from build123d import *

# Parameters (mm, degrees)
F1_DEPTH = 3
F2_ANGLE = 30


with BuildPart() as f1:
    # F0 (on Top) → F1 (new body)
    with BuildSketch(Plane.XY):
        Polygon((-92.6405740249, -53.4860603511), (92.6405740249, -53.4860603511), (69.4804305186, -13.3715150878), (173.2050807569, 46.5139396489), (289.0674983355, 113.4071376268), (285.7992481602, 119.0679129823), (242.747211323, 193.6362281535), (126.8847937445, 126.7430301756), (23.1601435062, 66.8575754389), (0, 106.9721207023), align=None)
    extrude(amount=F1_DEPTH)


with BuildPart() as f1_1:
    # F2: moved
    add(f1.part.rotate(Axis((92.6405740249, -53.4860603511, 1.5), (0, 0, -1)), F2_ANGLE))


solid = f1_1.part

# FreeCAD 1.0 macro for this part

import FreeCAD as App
import Part
import Sketcher

V = App.Vector
Q = App.Units.Quantity


def add_polygon(sketch, points):
    """Adds a closed chain of lines whose ends are joined by coincident constraints."""
    first, n = sketch.GeometryCount, len(points)
    for a, b in zip(points, points[1:] + points[:1]):
        sketch.addGeometry(Part.LineSegment(App.Vector(*a, 0), App.Vector(*b, 0)), False)
    for i in range(n):
        sketch.addConstraint(Sketcher.Constraint("Coincident", first + i, 2, first + (i + 1) % n, 1))

doc = App.newDocument("Part")
params = doc.addObject("Spreadsheet::Sheet", "Params")
for row, (alias, value) in enumerate([
    ("pad1_length", "3 mm"),
], start=1):
    params.set(f"A{row}", alias)
    params.set(f"B{row}", "=" + value)
    params.setAlias(f"B{row}", alias)

body = doc.addObject("PartDesign::Body", "Body")

sketch1 = body.newObject("Sketcher::SketchObject", "Sketch")
sketch1.AttachmentSupport = (doc.getObject("XY_Plane"), [""])
sketch1.MapMode = "FlatFace"
add_polygon(sketch1, [(-93, -53), (93, -53), (69, -13), (289, 113), (286, 119), (243, 194), (23, 67), (0, 107)])
sketch1.addConstraint(Sketcher.Constraint("Horizontal", 0))
sketch1.addConstraint(Sketcher.Constraint("PointOnObject", 6, 2, -2))
sketch1.addConstraint(Sketcher.Constraint("Perpendicular", 1, 2))
sketch1.addConstraint(Sketcher.Constraint("Perpendicular", 2, 3))
sketch1.addConstraint(Sketcher.Constraint("Parallel", 3, 4))
sketch1.addConstraint(Sketcher.Constraint("Perpendicular", 4, 5))
sketch1.addConstraint(Sketcher.Constraint("Perpendicular", 5, 6))
sketch1.addConstraint(Sketcher.Constraint("Equal", 2, 5))
sketch1.addConstraint(Sketcher.Constraint("Equal", 1, 6))
sketch1.addConstraint(Sketcher.Constraint("Angle", 1, Q("120 deg")))
sketch1.addConstraint(Sketcher.Constraint("Angle", 7, Q("-120 deg")))
sketch1.addConstraint(Sketcher.Constraint("Distance", 3, 6.5365))
sketch1.addConstraint(Sketcher.Constraint("DistanceX", 0, 1, 0, 2, 185.281148))
sketch1.addConstraint(Sketcher.Constraint("DistanceX", -1, 1, 2, 2, 289.067498))
sketch1.addConstraint(Sketcher.Constraint("DistanceY", 0, 2, -1, 1, 53.48606))
sketch1.addConstraint(Sketcher.Constraint("DistanceX", -1, 1, 1, 2, 69.480431))
pad1 = body.newObject("PartDesign::Pad", "Pad")
pad1.Profile = sketch1
pad1.setExpression("Length", "Params.pad1_length")
body2 = doc.addObject("PartDesign::Body", "Body001")
doc.recompute()

body.Placement = App.Placement(V(39.154514, 39.154514, 0), App.Rotation(V(0, 0, -1), 30))
boolean = body2.newObject("PartDesign::Boolean", "Boolean")
boolean.Type = "Fuse"
boolean.addObjects([body])

doc.recompute()
